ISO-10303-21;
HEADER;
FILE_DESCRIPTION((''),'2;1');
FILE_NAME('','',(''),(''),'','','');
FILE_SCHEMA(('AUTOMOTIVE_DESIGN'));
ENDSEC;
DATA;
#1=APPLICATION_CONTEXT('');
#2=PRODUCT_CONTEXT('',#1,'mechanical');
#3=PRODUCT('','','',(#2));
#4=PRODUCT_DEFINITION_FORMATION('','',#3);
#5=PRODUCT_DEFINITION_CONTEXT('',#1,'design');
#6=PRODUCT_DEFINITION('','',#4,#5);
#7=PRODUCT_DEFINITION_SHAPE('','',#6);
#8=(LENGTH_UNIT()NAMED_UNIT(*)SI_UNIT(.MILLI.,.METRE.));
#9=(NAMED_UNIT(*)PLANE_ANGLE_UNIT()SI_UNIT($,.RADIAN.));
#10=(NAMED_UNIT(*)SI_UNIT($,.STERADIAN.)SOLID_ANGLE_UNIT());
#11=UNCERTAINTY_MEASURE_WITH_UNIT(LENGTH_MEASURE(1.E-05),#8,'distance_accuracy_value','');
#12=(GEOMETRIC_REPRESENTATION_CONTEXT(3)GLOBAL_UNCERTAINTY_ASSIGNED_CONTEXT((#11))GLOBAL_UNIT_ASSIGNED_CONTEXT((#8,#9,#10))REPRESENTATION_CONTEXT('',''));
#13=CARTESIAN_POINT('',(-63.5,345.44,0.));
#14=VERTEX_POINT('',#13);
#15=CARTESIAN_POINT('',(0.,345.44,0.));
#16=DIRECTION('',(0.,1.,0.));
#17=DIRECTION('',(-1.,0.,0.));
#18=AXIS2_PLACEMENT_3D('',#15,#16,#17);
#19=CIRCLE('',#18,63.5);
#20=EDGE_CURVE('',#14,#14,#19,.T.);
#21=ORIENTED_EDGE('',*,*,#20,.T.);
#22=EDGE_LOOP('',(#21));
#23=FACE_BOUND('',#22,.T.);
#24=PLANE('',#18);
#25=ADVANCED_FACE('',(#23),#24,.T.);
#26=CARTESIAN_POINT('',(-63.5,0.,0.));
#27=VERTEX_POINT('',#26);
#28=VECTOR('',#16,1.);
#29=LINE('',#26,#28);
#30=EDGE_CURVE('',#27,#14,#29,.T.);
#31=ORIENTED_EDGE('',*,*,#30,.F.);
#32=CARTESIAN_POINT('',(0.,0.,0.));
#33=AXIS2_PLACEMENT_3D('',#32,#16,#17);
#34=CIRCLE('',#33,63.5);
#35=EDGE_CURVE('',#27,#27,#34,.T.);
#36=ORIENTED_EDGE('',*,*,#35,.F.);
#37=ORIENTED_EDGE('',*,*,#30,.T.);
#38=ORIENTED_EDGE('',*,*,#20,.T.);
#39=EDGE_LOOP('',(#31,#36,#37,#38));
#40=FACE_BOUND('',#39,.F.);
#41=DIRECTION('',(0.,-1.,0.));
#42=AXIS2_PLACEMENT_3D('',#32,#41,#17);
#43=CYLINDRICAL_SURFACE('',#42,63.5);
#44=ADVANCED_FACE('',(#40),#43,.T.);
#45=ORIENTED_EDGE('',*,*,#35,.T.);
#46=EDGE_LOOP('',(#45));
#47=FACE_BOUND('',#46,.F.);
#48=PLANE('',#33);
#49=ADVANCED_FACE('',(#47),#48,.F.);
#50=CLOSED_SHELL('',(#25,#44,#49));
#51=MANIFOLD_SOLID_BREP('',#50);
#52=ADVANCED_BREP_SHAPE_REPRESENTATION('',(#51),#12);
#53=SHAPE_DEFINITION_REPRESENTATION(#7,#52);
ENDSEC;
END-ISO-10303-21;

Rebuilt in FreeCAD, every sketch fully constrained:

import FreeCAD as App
import Part
import Sketcher

V = App.Vector
Q = App.Units.Quantity

doc = App.newDocument("Part")
body = doc.addObject("PartDesign::Body", "Body")

sketch1 = doc.addObject("Sketcher::SketchObject", "Sketch")
body.addObject(sketch1)
sketch1.AttachmentSupport = (doc.XZ_Plane, [""])
sketch1.MapMode = "FlatFace"
sketch1.addGeometry(Part.Circle(V(0, 0, 0), V(0, 0, 1), 63.5), False)
sketch1.addConstraint([
    Sketcher.Constraint("Coincident", 0, 3, -1, 1),
    Sketcher.Constraint("Diameter", 0, Q("5 in")),
])
pad1 = doc.addObject("PartDesign::Pad", "Pad")
body.addObject(pad1)
pad1.Profile = sketch1
pad1.Length = Q("13.6 in")
pad1.Reversed = True

doc.recompute()
